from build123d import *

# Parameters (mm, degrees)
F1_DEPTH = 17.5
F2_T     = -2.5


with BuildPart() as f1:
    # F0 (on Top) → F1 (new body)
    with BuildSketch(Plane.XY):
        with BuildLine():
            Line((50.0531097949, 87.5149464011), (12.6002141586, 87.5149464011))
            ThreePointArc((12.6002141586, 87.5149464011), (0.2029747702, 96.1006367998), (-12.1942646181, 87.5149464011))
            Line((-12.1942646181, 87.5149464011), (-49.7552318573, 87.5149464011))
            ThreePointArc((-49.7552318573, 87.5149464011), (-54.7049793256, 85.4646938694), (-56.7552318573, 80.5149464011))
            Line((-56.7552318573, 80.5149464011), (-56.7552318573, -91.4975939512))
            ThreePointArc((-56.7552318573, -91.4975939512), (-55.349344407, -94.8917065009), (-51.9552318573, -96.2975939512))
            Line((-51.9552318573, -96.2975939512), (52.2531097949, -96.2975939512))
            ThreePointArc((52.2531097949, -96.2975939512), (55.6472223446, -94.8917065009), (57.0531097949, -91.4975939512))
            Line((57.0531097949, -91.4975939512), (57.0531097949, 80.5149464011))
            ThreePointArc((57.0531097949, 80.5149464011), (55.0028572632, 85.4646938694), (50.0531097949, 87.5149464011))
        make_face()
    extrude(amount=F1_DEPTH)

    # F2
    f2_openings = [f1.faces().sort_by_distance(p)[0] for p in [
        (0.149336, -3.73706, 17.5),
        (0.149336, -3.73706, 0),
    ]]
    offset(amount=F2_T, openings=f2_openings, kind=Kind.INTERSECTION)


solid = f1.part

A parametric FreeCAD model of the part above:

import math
import FreeCAD as App
import Part
import Sketcher
Q = App.Units.Quantity


def faces_at(feature, points):
    """Names of the faces that lie closest to the given points."""
    faces = feature.Shape.Faces
    near = lambda p: min(range(len(faces)), key=lambda i: faces[i].distToShape(Part.Vertex(*p))[0])
    return sorted({f"Face{near(p) + 1}" for p in points})

doc = App.newDocument("Part")
params = doc.addObject("Spreadsheet::Sheet", "Params")
for row, (alias, value) in enumerate([
    ("sketch1_radius", "7 mm"),
    ("sketch1_radius2", "4.8 mm"),
    ("pad1_length", "17.5 mm"),
    ("thickness_wall", "2.5 mm"),
], start=1):
    params.set(f"A{row}", alias)
    params.set(f"B{row}", "=" + value)
    params.setAlias(f"B{row}", alias)

body = doc.addObject("PartDesign::Body", "Body")

sketch1 = body.newObject("Sketcher::SketchObject", "Sketch")
sketch1.AttachmentSupport = (doc.getObject("XY_Plane"), [""])
sketch1.MapMode = "FlatFace"
sketch1.addGeometry([
    Part.LineSegment(App.Vector(50.05311, 87.514946, 0), App.Vector(12.600214, 87.514946, 0)),
    Part.ArcOfCircle(Part.Circle(App.Vector(0.202975, 82.857344, 0), App.Vector(0, 0, 1), 13.243293), math.radians(20.591036), math.radians(159.408964)),
    Part.LineSegment(App.Vector(-12.194265, 87.514946, 0), App.Vector(-49.755232, 87.514946, 0)),
    Part.ArcOfCircle(Part.Circle(App.Vector(-49.755232, 80.514946, 0), App.Vector(0, 0, 1), 7), math.radians(90), math.radians(180)),
    Part.LineSegment(App.Vector(-56.755232, 80.514946, 0), App.Vector(-56.755232, -91.497594, 0)),
    Part.ArcOfCircle(Part.Circle(App.Vector(-51.955232, -91.497594, 0), App.Vector(0, 0, 1), 4.8), math.radians(180), math.radians(270)),
    Part.LineSegment(App.Vector(-51.955232, -96.297594, 0), App.Vector(52.25311, -96.297594, 0)),
    Part.ArcOfCircle(Part.Circle(App.Vector(52.25311, -91.497594, 0), App.Vector(0, 0, 1), 4.8), math.radians(-90), math.radians(0)),
    Part.LineSegment(App.Vector(57.05311, -91.497594, 0), App.Vector(57.05311, 80.514946, 0)),
    Part.ArcOfCircle(Part.Circle(App.Vector(50.05311, 80.514946, 0), App.Vector(0, 0, 1), 7), math.radians(0), math.radians(90)),
], False)
sketch1.addConstraint([
    Sketcher.Constraint("Coincident", 0, 2, 1, 1),
    Sketcher.Constraint("Coincident", 1, 2, 2, 1),
    Sketcher.Constraint("Tangent", 2, 2, 3, 1),
    Sketcher.Constraint("Tangent", 3, 2, 4, 1),
    Sketcher.Constraint("Tangent", 4, 2, 5, 1),
    Sketcher.Constraint("Tangent", 5, 2, 6, 1),
    Sketcher.Constraint("Tangent", 6, 2, 7, 1),
    Sketcher.Constraint("Tangent", 7, 2, 8, 1),
    Sketcher.Constraint("Tangent", 8, 2, 9, 1),
    Sketcher.Constraint("Tangent", 9, 2, 0, 1),
    Sketcher.Constraint("Horizontal", 0),
    Sketcher.Constraint("Horizontal", 2),
    Sketcher.Constraint("Vertical", 4),
    Sketcher.Constraint("Horizontal", 6),
    Sketcher.Constraint("Vertical", 8),
    Sketcher.Constraint("Equal", 5, 7),
    Sketcher.Constraint("Equal", 3, 9),
    Sketcher.Constraint("Horizontal", 3, 3, 9, 3),
    Sketcher.Constraint("Radius", 3, Q("7 mm")),
    Sketcher.Constraint("Radius", 5, Q("4.8 mm")),
    Sketcher.Constraint("Radius", 1, Q("13.243293 mm")),
    Sketcher.Constraint("DistanceX", 6, 1, 6, 2, Q("104.208342 mm")),
    Sketcher.Constraint("DistanceY", 4, 2, 4, 1, Q("172.01254 mm")),
    Sketcher.Constraint("DistanceX", 0, 2, 0, 1, Q("37.452896 mm")),
    Sketcher.Constraint("DistanceX", 2, 2, 2, 1, Q("37.560967 mm")),
    Sketcher.Constraint("DistanceX", 3, 3, -1, 1, Q("49.755232 mm")),
    Sketcher.Constraint("DistanceY", -1, 1, 1, 3, Q("82.857344 mm")),
])
sketch1.setExpression("Constraints[18]", "Params.sketch1_radius")
sketch1.setExpression("Constraints[19]", "Params.sketch1_radius2")
pad1 = body.newObject("PartDesign::Pad", "Pad")
pad1.Profile = sketch1
pad1.setExpression("Length", "Params.pad1_length")
doc.recompute()

thickness = body.newObject("PartDesign::Thickness", "Thickness")
thickness.Base = (pad1, faces_at(pad1, [(0.149, -0.098, 17.5), (0.149, -0.098, 0)]))
thickness.setExpression("Value", "Params.thickness_wall")
thickness.Reversed = True
thickness.Join = "Intersection"

doc.recompute()
